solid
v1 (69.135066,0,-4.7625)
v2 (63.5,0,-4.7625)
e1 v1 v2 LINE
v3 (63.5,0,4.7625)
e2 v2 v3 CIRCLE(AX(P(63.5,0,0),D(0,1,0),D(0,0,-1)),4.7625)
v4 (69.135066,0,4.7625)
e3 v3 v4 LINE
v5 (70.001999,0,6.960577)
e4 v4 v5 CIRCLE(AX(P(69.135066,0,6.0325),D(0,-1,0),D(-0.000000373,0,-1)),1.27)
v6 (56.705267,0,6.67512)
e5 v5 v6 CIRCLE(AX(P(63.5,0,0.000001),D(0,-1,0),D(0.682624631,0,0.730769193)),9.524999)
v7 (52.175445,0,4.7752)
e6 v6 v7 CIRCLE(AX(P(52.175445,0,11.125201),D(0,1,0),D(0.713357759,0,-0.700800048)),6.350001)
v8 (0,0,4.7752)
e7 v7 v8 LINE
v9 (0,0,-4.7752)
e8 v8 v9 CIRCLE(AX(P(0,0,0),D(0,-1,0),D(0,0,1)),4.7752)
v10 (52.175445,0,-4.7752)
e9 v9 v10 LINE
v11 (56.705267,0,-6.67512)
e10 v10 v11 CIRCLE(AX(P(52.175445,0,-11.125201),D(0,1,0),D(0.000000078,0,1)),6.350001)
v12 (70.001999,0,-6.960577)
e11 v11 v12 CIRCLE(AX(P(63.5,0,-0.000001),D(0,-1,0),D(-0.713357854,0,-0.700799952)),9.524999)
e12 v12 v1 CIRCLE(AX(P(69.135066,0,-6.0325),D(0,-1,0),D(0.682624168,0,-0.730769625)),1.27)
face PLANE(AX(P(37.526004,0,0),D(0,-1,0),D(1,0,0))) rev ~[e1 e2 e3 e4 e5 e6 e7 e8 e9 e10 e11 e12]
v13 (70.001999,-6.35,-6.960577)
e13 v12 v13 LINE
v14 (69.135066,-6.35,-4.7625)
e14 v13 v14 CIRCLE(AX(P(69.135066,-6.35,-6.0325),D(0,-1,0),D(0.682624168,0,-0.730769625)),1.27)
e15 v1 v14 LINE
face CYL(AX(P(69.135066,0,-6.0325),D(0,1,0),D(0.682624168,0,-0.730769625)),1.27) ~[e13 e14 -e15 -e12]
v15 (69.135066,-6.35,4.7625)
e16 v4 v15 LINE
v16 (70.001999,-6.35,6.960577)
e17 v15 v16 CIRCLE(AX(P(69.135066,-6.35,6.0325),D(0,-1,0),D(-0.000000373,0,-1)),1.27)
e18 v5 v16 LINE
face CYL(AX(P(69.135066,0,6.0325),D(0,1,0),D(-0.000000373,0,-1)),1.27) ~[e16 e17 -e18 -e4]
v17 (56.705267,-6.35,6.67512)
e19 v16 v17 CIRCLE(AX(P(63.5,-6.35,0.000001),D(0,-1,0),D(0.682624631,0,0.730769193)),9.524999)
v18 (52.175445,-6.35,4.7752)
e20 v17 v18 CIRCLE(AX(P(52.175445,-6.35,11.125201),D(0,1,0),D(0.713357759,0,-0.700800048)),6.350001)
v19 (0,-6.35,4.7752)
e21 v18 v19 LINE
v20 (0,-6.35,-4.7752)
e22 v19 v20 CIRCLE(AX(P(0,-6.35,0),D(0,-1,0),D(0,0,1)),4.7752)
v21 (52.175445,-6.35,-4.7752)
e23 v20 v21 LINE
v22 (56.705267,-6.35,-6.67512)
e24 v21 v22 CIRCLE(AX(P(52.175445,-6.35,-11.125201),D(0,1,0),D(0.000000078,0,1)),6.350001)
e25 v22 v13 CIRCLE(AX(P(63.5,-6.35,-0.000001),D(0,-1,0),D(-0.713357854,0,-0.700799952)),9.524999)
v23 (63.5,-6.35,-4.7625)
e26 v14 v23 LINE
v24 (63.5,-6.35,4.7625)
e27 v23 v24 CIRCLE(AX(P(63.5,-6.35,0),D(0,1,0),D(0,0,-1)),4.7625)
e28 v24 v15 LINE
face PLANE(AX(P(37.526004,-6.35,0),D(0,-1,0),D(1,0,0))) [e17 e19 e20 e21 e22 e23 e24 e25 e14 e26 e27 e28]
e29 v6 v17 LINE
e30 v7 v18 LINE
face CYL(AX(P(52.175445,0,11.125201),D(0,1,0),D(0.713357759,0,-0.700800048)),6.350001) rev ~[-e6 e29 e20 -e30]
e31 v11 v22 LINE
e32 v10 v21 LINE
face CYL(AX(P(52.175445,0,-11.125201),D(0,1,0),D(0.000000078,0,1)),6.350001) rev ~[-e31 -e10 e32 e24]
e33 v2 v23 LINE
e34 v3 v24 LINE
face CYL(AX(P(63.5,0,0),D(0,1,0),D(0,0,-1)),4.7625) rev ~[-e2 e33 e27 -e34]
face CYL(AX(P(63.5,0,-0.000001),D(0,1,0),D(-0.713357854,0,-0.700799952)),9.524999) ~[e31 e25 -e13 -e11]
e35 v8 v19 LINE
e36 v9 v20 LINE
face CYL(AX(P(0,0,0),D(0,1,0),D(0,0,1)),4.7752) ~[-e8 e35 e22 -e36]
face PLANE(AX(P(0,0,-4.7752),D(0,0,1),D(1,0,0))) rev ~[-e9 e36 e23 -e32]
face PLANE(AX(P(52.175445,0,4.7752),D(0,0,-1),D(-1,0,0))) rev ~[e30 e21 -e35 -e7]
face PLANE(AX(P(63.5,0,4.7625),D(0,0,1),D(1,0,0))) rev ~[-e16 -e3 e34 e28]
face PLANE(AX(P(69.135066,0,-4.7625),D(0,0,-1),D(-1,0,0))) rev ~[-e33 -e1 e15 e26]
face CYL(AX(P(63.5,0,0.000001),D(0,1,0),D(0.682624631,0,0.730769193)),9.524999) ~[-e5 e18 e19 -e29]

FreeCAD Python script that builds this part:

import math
import FreeCAD as App
import Part
import Sketcher

V = App.Vector
Q = App.Units.Quantity

doc = App.newDocument("Part")
body = doc.addObject("PartDesign::Body", "Body")

# Sketch on XZ plane
sketch1 = body.newObject("Sketcher::SketchObject", "Sketch")
sketch1.AttachmentSupport = (doc.getObject("XZ_Plane"), [""])
sketch1.MapMode = "FlatFace"
sketch1.addGeometry(Part.LineSegment(V(52.2, 4.8, 0), V(0, 4.8, 0)), False)
sketch1.addGeometry(Part.ArcOfCircle(Part.Circle(V(0, 0, 0), V(0, 0, 1), 4.8), math.radians(90), math.radians(270)), False)
sketch1.addGeometry(Part.LineSegment(V(0, -4.8, 0), V(52.2, -4.8, 0)), False)
sketch1.addGeometry(Part.ArcOfCircle(Part.Circle(V(52.2, -11.1, 0), V(0, 0, 1), 6.4), math.radians(44), math.radians(90)), False)
sketch1.addGeometry(Part.ArcOfCircle(Part.Circle(V(63.5, 0, 0), V(0, 0, 1), 9.5), math.radians(-136), math.radians(-47)), False)
sketch1.addGeometry(Part.ArcOfCircle(Part.Circle(V(69.1, -6, 0), V(0, 0, 1), 1.3), math.radians(-47), math.radians(90)), False)
sketch1.addGeometry(Part.LineSegment(V(69.1, -4.8, 0), V(63.5, -4.8, 0)), False)
sketch1.addGeometry(Part.ArcOfCircle(Part.Circle(V(63.5, 0, 0), V(0, 0, 1), 4.8), math.radians(90), math.radians(270)), False)
sketch1.addGeometry(Part.LineSegment(V(63.5, 4.8, 0), V(69.1, 4.8, 0)), False)
sketch1.addGeometry(Part.ArcOfCircle(Part.Circle(V(69.1, 6, 0), V(0, 0, 1), 1.3), math.radians(-90), math.radians(47)), False)
sketch1.addGeometry(Part.ArcOfCircle(Part.Circle(V(63.5, 0, 0), V(0, 0, 1), 9.5), math.radians(47), math.radians(136)), False)
sketch1.addGeometry(Part.ArcOfCircle(Part.Circle(V(52.2, 11.1, 0), V(0, 0, 1), 6.4), math.radians(-90), math.radians(-44)), False)
sketch1.addConstraint(Sketcher.Constraint("Tangent", 0, 2, 1, 1))
sketch1.addConstraint(Sketcher.Constraint("Tangent", 1, 2, 2, 1))
sketch1.addConstraint(Sketcher.Constraint("Tangent", 2, 2, 3, 2))
sketch1.addConstraint(Sketcher.Constraint("Tangent", 3, 1, 4, 1))
sketch1.addConstraint(Sketcher.Constraint("Tangent", 4, 2, 5, 1))
sketch1.addConstraint(Sketcher.Constraint("Tangent", 5, 2, 6, 1))
sketch1.addConstraint(Sketcher.Constraint("Tangent", 6, 2, 7, 2))
sketch1.addConstraint(Sketcher.Constraint("Tangent", 7, 1, 8, 1))
sketch1.addConstraint(Sketcher.Constraint("Tangent", 8, 2, 9, 1))
sketch1.addConstraint(Sketcher.Constraint("Tangent", 9, 2, 10, 1))
sketch1.addConstraint(Sketcher.Constraint("Tangent", 10, 2, 11, 2))
sketch1.addConstraint(Sketcher.Constraint("Tangent", 11, 1, 0, 1))
sketch1.addConstraint(Sketcher.Constraint("Horizontal", 0))
sketch1.addConstraint(Sketcher.Constraint("Horizontal", 2))
sketch1.addConstraint(Sketcher.Constraint("Horizontal", 6))
sketch1.addConstraint(Sketcher.Constraint("Horizontal", 8))
sketch1.addConstraint(Sketcher.Constraint("Coincident", 1, 3, -1, 1))
sketch1.addConstraint(Sketcher.Constraint("Coincident", 7, 3, 4, 3))
sketch1.addConstraint(Sketcher.Constraint("Coincident", 10, 3, 4, 3))
sketch1.addConstraint(Sketcher.Constraint("Equal", 5, 9))
sketch1.addConstraint(Sketcher.Constraint("Equal", 4, 10))
sketch1.addConstraint(Sketcher.Constraint("Equal", 3, 11))
sketch1.addConstraint(Sketcher.Constraint("PointOnObject", 4, 3, -1))
sketch1.addConstraint(Sketcher.Constraint("Radius", 3, Q("0.25 in")))
sketch1.addConstraint(Sketcher.Constraint("Radius", 5, Q("0.05 in")))
sketch1.addConstraint(Sketcher.Constraint("Radius", 1, Q("0.188 in")))
sketch1.addConstraint(Sketcher.Constraint("Radius", 4, Q("0.375 in")))
sketch1.addConstraint(Sketcher.Constraint("Radius", 7, Q("0.1875 in")))
sketch1.addConstraint(Sketcher.Constraint("DistanceX", -1, 1, 4, 3, Q("2.5 in")))
pad1 = body.newObject("PartDesign::Pad", "Pad")
pad1.Profile = sketch1
pad1.Length = Q("0.25 in")

doc.recompute()
